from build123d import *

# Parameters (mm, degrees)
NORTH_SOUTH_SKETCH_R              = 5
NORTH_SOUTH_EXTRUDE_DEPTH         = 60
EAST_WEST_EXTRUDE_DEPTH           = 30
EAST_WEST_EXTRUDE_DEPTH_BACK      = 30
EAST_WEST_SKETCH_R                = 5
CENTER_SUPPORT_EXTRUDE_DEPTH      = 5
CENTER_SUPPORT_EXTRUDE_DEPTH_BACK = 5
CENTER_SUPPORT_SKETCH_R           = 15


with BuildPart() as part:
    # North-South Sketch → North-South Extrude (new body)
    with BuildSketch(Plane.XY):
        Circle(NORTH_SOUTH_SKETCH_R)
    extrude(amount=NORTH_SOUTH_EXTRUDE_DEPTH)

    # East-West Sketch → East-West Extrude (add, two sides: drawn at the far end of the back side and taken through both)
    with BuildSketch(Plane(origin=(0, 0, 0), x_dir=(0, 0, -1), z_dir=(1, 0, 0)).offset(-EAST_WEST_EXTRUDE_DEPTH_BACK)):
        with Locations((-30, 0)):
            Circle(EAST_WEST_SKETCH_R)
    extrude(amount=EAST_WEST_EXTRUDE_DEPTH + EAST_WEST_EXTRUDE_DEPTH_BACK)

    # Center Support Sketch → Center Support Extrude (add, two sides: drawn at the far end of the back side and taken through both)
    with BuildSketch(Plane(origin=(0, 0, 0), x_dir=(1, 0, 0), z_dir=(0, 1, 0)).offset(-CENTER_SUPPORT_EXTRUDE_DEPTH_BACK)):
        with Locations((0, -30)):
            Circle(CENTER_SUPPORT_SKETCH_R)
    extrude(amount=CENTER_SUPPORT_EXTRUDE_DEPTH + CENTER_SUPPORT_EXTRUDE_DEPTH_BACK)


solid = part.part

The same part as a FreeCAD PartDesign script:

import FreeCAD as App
import Part
import Sketcher

V = App.Vector

doc = App.newDocument("Part")
params = doc.addObject("Spreadsheet::Sheet", "Params")
for row, (alias, value) in enumerate([
    ("sketch1_diameter", "10 mm"),
    ("pad1_length", "60 mm"),
    ("sketch2_diameter", "10 mm"),
    ("pad2_length", "30 mm"),
    ("pad2_length2", "30 mm"),
    ("sketch3_diameter", "30 mm"),
    ("pad3_length", "5 mm"),
    ("pad3_length2", "5 mm"),
], start=1):
    params.set(f"A{row}", alias)
    params.set(f"B{row}", "=" + value)
    params.setAlias(f"B{row}", alias)

body = doc.addObject("PartDesign::Body", "Body")

# Sketch on XY plane
sketch1 = body.newObject("Sketcher::SketchObject", "Sketch")
sketch1.AttachmentSupport = (doc.getObject("XY_Plane"), [""])
sketch1.MapMode = "FlatFace"
sketch1.addGeometry(Part.Circle(V(0, 0, 0), V(0, 0, 1), 5), False)
sketch1.addConstraint(Sketcher.Constraint("Coincident", 0, 3, -1, 1))
sketch1.addConstraint(Sketcher.Constraint("Diameter", 0, 10.0))
sketch1.setExpression("Constraints[1]", "Params.sketch1_diameter")
pad1 = body.newObject("PartDesign::Pad", "Pad")
pad1.Profile = sketch1
pad1.setExpression("Length", "Params.pad1_length")

# Sketch on YZ plane
sketch2 = body.newObject("Sketcher::SketchObject", "Sketch001")
sketch2.AttachmentSupport = (doc.getObject("YZ_Plane"), [""])
sketch2.MapMode = "FlatFace"
sketch2.addGeometry(Part.Circle(V(0, 30, 0), V(0, 0, 1), 5), False)
sketch2.addConstraint(Sketcher.Constraint("PointOnObject", 0, 3, -2))
sketch2.addConstraint(Sketcher.Constraint("Diameter", 0, 10.0))
sketch2.addConstraint(Sketcher.Constraint("DistanceY", -1, 1, 0, 3, 30.0))
sketch2.setExpression("Constraints[1]", "Params.sketch2_diameter")
pad2 = body.newObject("PartDesign::Pad", "Pad001")
pad2.Profile = sketch2
pad2.Type = "TwoLengths"
pad2.setExpression("Length", "Params.pad2_length")
pad2.setExpression("Length2", "Params.pad2_length2")

# Sketch on XZ plane
sketch3 = body.newObject("Sketcher::SketchObject", "Sketch002")
sketch3.AttachmentSupport = (doc.getObject("XZ_Plane"), [""])
sketch3.MapMode = "FlatFace"
sketch3.addGeometry(Part.Circle(V(0, 30, 0), V(0, 0, 1), 15), False)
sketch3.addConstraint(Sketcher.Constraint("PointOnObject", 0, 3, -2))
sketch3.addConstraint(Sketcher.Constraint("Diameter", 0, 30.0))
sketch3.addConstraint(Sketcher.Constraint("DistanceY", -1, 1, 0, 3, 30.0))
sketch3.setExpression("Constraints[1]", "Params.sketch3_diameter")
pad3 = body.newObject("PartDesign::Pad", "Pad002")
pad3.Profile = sketch3
pad3.Type = "TwoLengths"
pad3.setExpression("Length", "Params.pad3_length")
pad3.setExpression("Length2", "Params.pad3_length2")
pad3.Reversed = True

doc.recompute()
